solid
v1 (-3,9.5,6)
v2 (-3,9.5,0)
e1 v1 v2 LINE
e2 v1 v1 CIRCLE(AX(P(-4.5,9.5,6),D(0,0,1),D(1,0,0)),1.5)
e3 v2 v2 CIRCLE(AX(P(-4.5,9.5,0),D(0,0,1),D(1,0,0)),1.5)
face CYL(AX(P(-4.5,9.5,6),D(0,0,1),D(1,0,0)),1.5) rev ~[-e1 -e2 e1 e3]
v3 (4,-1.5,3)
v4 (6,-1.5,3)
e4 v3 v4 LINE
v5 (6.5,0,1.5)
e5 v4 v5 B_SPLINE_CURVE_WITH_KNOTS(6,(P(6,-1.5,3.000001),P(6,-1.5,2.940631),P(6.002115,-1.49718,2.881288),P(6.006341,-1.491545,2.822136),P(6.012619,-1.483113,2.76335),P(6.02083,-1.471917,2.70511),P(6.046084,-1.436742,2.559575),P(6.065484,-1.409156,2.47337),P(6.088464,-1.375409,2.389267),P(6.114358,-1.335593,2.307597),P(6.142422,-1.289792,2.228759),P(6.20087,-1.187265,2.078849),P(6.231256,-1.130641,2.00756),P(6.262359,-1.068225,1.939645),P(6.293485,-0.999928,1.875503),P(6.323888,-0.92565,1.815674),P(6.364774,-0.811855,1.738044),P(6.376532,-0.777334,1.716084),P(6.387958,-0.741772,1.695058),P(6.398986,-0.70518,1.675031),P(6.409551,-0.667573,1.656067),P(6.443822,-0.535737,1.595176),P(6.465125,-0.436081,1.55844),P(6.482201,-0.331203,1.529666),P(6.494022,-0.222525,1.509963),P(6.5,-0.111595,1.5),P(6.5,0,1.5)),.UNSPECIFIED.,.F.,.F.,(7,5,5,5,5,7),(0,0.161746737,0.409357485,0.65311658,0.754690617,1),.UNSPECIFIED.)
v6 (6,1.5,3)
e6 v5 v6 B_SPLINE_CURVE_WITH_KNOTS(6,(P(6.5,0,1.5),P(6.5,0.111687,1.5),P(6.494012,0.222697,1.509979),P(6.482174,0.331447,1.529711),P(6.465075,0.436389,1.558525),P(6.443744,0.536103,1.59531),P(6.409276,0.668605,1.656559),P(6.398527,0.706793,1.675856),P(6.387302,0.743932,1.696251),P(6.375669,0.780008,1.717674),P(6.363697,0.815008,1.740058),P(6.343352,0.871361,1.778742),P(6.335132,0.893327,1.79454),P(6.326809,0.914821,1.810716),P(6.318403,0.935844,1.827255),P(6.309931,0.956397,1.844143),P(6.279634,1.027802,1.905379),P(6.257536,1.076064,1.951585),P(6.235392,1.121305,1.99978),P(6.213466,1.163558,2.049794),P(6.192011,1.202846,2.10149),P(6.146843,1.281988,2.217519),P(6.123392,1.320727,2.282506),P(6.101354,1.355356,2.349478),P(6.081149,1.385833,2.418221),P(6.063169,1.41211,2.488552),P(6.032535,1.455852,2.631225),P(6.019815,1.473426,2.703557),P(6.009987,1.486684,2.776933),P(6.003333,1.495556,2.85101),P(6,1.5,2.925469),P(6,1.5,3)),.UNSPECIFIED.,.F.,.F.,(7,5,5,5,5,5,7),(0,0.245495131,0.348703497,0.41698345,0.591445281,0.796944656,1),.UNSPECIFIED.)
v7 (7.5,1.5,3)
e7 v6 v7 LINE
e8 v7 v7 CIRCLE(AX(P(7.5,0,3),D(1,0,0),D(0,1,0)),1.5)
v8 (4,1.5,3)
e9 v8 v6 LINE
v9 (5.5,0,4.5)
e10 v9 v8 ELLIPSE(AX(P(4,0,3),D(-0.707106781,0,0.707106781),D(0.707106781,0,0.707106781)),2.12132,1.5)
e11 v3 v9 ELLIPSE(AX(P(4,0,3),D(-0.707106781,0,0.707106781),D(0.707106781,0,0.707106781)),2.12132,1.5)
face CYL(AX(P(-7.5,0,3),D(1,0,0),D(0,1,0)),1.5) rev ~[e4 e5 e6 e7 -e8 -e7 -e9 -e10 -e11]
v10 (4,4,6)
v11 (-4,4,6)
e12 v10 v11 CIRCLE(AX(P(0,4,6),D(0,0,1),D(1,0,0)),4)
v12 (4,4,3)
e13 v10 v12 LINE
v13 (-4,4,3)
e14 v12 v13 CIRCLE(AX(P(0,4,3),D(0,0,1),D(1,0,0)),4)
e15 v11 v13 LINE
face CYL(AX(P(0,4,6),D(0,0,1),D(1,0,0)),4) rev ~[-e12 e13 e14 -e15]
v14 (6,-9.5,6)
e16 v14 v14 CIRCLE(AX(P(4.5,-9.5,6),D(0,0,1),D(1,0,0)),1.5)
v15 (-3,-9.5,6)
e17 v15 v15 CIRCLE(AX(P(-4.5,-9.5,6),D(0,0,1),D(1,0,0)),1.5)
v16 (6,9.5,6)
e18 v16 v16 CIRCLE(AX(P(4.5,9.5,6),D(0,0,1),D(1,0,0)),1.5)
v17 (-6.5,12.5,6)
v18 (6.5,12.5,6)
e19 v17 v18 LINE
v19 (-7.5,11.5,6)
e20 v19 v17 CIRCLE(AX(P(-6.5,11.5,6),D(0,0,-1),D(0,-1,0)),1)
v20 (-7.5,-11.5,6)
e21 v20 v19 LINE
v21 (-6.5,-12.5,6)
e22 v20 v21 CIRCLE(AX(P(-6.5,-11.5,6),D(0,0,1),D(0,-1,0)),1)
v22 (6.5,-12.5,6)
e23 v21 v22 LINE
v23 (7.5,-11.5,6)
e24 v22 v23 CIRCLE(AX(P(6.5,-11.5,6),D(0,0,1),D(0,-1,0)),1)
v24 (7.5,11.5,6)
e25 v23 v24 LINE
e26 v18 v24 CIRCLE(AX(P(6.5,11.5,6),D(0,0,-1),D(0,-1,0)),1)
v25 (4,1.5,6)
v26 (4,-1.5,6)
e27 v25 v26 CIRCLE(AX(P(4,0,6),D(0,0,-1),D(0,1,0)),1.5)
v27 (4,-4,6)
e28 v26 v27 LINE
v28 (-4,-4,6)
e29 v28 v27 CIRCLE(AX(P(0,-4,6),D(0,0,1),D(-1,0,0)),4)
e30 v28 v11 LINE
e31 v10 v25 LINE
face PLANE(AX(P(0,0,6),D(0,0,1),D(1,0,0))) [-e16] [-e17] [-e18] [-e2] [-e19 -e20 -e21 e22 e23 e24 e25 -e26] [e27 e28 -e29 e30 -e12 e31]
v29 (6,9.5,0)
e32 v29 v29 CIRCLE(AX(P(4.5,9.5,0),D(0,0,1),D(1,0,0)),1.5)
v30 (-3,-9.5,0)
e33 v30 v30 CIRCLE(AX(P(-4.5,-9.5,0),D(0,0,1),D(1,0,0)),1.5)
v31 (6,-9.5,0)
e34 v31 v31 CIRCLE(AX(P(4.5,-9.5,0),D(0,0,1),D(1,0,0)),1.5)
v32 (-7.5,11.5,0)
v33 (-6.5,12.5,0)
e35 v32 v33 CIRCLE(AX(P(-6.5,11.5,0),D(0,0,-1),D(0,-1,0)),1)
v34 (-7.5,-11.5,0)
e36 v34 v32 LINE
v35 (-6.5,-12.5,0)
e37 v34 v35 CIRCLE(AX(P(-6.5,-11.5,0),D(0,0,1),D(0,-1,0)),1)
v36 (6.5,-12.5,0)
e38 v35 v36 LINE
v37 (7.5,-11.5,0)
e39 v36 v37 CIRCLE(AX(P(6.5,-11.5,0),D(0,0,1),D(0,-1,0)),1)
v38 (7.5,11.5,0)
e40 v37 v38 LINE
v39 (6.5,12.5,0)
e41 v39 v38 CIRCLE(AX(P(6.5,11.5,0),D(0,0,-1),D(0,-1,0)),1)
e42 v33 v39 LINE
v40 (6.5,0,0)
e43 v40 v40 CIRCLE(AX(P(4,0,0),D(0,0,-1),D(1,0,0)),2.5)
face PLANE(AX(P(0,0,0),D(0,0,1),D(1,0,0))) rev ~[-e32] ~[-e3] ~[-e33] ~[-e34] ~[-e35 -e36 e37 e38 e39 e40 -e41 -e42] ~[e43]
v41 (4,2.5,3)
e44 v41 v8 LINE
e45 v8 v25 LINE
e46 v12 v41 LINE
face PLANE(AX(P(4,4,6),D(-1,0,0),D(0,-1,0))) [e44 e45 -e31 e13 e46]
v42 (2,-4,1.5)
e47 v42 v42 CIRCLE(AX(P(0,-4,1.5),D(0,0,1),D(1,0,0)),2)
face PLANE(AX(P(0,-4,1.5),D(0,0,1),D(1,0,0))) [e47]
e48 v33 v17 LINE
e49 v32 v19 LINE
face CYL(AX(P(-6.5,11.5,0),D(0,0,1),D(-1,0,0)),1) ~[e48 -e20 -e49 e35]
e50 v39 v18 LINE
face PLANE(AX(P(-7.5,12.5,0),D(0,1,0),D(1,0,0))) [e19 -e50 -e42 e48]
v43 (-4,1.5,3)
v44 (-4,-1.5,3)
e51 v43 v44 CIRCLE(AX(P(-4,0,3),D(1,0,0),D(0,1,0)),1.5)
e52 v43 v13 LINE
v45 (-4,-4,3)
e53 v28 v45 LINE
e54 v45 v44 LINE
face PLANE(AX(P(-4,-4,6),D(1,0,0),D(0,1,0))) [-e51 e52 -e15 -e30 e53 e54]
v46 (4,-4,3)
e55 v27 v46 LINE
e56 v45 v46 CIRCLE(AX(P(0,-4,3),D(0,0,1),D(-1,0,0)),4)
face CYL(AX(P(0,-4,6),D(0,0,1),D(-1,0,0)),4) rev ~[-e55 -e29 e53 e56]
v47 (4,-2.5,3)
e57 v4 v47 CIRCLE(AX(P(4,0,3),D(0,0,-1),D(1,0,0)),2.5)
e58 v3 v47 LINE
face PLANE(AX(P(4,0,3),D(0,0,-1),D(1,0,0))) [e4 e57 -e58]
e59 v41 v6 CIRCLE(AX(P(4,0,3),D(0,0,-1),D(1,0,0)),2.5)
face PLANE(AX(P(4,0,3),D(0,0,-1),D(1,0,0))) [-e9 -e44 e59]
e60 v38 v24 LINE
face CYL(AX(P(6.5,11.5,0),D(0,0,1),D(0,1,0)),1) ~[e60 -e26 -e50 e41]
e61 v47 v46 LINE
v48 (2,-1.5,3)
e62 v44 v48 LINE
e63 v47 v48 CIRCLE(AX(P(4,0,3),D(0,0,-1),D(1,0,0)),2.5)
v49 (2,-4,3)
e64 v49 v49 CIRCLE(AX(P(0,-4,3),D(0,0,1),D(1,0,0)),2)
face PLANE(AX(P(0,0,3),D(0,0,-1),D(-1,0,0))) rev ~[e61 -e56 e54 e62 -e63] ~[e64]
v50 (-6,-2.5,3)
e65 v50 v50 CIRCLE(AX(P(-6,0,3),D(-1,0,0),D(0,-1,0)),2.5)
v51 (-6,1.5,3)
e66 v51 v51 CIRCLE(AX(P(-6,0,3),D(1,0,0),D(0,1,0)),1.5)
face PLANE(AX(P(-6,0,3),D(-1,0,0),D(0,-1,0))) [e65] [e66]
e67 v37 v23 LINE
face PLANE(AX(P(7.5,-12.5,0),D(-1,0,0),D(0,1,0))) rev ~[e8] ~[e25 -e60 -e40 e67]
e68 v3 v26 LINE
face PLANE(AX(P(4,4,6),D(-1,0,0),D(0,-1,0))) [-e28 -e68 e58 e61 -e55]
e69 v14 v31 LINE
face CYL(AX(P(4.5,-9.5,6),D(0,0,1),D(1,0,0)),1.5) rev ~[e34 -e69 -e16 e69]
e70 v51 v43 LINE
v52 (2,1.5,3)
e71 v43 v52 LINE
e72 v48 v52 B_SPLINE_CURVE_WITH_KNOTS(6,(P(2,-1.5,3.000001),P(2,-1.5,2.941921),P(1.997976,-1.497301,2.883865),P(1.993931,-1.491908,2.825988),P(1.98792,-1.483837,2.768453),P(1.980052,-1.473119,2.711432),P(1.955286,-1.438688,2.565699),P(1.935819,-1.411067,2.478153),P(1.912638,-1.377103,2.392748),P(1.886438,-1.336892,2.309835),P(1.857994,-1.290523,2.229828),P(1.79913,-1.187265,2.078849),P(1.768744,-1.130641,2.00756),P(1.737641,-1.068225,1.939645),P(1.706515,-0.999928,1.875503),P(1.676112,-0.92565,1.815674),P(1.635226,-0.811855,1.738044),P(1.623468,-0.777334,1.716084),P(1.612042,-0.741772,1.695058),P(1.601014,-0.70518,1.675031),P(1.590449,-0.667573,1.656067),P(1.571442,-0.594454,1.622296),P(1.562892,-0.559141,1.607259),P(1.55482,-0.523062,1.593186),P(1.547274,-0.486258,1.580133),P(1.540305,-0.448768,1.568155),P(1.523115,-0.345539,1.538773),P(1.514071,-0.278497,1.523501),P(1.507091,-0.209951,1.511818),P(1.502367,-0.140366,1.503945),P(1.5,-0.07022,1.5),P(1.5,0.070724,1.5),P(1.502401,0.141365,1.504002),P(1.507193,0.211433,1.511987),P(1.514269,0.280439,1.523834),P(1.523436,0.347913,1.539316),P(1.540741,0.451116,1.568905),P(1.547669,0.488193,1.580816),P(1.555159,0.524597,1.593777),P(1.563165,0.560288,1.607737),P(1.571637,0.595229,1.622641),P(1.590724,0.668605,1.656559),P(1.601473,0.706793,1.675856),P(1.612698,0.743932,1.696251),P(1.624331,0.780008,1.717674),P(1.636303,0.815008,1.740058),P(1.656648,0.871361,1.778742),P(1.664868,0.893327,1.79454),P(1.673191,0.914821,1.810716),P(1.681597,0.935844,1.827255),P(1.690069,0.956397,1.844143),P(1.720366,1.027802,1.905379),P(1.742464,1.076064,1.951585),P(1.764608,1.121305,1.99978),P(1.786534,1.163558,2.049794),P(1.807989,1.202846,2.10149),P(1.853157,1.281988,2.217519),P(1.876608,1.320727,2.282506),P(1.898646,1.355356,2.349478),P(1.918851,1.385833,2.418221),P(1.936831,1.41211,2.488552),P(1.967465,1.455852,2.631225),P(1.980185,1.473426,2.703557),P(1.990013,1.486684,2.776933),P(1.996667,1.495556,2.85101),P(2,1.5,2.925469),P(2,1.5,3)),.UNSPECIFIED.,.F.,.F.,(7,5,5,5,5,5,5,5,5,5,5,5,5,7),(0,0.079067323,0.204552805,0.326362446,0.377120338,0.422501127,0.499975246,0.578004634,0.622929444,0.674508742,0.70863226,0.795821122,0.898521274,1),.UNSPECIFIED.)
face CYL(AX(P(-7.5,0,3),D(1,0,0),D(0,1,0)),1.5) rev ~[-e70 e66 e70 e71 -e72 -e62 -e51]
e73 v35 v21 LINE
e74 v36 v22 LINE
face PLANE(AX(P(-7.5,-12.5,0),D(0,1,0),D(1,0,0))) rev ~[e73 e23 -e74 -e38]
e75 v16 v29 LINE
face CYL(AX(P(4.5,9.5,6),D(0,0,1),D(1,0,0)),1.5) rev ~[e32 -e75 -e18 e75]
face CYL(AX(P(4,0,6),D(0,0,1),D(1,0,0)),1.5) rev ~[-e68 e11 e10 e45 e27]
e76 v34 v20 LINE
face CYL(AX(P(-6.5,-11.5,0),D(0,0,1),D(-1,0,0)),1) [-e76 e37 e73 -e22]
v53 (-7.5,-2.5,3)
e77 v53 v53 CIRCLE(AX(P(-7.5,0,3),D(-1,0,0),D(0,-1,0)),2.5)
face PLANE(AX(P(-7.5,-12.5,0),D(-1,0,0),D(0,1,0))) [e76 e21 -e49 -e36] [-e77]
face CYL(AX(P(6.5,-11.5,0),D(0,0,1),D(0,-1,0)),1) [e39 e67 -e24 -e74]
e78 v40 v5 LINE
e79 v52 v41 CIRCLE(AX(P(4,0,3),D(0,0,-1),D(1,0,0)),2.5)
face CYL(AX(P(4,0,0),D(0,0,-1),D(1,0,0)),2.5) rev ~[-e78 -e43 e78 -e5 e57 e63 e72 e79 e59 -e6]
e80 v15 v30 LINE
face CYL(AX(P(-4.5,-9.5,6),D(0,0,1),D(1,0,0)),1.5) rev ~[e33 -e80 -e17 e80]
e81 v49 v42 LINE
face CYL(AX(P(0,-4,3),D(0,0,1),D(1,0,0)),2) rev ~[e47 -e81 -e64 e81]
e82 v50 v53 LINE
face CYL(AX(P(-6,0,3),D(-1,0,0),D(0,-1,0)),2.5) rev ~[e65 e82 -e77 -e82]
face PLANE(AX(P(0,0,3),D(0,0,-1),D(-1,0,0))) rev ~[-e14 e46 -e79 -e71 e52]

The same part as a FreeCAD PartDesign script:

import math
import FreeCAD as App
import Part
import Sketcher
from FreeCAD import Vector
Q = App.Units.Quantity


def edges_at(feature, points):
    """Names of the edges that pass closest to the given points."""
    edges = feature.Shape.Edges
    near = lambda p: min(range(len(edges)), key=lambda i: edges[i].distToShape(Part.Vertex(*p))[0])
    return sorted({f"Edge{near(p) + 1}" for p in points})


def add_polygon(sketch, points):
    """Adds a closed chain of lines whose ends are joined by coincident constraints."""
    first, n = sketch.GeometryCount, len(points)
    for a, b in zip(points, points[1:] + points[:1]):
        sketch.addGeometry(Part.LineSegment(App.Vector(*a, 0), App.Vector(*b, 0)), False)
    for i in range(n):
        sketch.addConstraint(Sketcher.Constraint("Coincident", first + i, 2, first + (i + 1) % n, 1))

doc = App.newDocument("Part")
body = doc.addObject("PartDesign::Body", "Body")

# Sketch on XY plane
sketch1 = doc.addObject("Sketcher::SketchObject", "Sketch")
body.addObject(sketch1)
sketch1.AttachmentSupport = (doc.XY_Plane, [""])
sketch1.MapMode = "FlatFace"
add_polygon(sketch1, [(-8, 12), (-8, -12), (8, -12), (8, 12)])  # lines 0-3
sketch1.addConstraint([
    Sketcher.Constraint("Vertical", 0),
    Sketcher.Constraint("Horizontal", 1),
    Sketcher.Constraint("Vertical", 2),
    Sketcher.Constraint("Horizontal", 3),
    Sketcher.Constraint("Symmetric", 0, 2, 2, 2, -1, 1),
    Sketcher.Constraint("DistanceX", 1, 1, 1, 2, Q("15 mm")),
    Sketcher.Constraint("DistanceY", 0, 2, 0, 1, Q("25 mm")),
])
pad1 = doc.addObject("PartDesign::Pad", "Pad")
body.addObject(pad1)
pad1.Profile = sketch1
pad1.Length = 6

# Sketch on XY plane
sketch2 = doc.addObject("Sketcher::SketchObject", "Sketch001")
body.addObject(sketch2)
sketch2.AttachmentSupport = (doc.XY_Plane, [""])
sketch2.MapMode = "FlatFace"
sketch2.AttachmentOffset = App.Placement(Vector(0, 0, 6), App.Rotation())
sketch2.addGeometry([
    Part.LineSegment(Vector(4, -4, 0), Vector(4, 4, 0)),
    Part.ArcOfCircle(Part.Circle(Vector(0, 4, 0), Vector(0, 0, 1), 4), math.radians(0), math.radians(180)),
    Part.LineSegment(Vector(-4, 4, 0), Vector(-4, -4, 0)),
    Part.ArcOfCircle(Part.Circle(Vector(0, -4, 0), Vector(0, 0, 1), 4), math.radians(180), math.radians(360)),
], False)
sketch2.addConstraint([
    Sketcher.Constraint("Tangent", 0, 2, 1, 1),
    Sketcher.Constraint("Tangent", 1, 2, 2, 1),
    Sketcher.Constraint("Tangent", 2, 2, 3, 1),
    Sketcher.Constraint("Tangent", 3, 2, 0, 1),
    Sketcher.Constraint("Vertical", 0),
    Sketcher.Constraint("Vertical", 2),
    Sketcher.Constraint("Symmetric", 1, 3, 3, 3, -1, 1),
    Sketcher.Constraint("Radius", 1, Q("4 mm")),
    Sketcher.Constraint("DistanceY", 0, 1, 0, 2, Q("8 mm")),
])
pocket1 = doc.addObject("PartDesign::Pocket", "Pocket")
body.addObject(pocket1)
pocket1.Profile = sketch2
pocket1.Length = 3

# Sketch on XY plane
sketch3 = doc.addObject("Sketcher::SketchObject", "Sketch002")
body.addObject(sketch3)
sketch3.AttachmentSupport = (doc.XY_Plane, [""])
sketch3.MapMode = "FlatFace"
sketch3.addGeometry(Part.Circle(Vector(4, 0, 0), Vector(0, 0, 1), 2.5), False)
sketch3.addConstraint([
    Sketcher.Constraint("PointOnObject", 0, 3, -1),
    Sketcher.Constraint("Diameter", 0, Q("5 mm")),
    Sketcher.Constraint("DistanceX", -1, 1, 0, 3, Q("4 mm")),
])
pocket2 = doc.addObject("PartDesign::Pocket", "Pocket001")
body.addObject(pocket2)
pocket2.Profile = sketch3
pocket2.Length = 3
pocket2.Reversed = True

# Sketch on XY plane
sketch4 = doc.addObject("Sketcher::SketchObject", "Sketch003")
body.addObject(sketch4)
sketch4.AttachmentSupport = (doc.XY_Plane, [""])
sketch4.MapMode = "FlatFace"
sketch4.AttachmentOffset = App.Placement(Vector(0, 0, 6), App.Rotation())
sketch4.addGeometry(Part.Circle(Vector(4, 0, 0), Vector(0, 0, 1), 1.5), False)
sketch4.addConstraint([
    Sketcher.Constraint("PointOnObject", 0, 3, -1),
    Sketcher.Constraint("Diameter", 0, Q("3 mm")),
    Sketcher.Constraint("DistanceX", -1, 1, 0, 3, Q("4 mm")),
])
pocket3 = doc.addObject("PartDesign::Pocket", "Pocket002")
body.addObject(pocket3)
pocket3.Profile = sketch4
pocket3.Type = "ThroughAll"

# Sketch on XY plane
sketch5 = doc.addObject("Sketcher::SketchObject", "Sketch004")
body.addObject(sketch5)
sketch5.AttachmentSupport = (doc.XY_Plane, [""])
sketch5.MapMode = "FlatFace"
sketch5.AttachmentOffset = App.Placement(Vector(0, 0, 3), App.Rotation())
sketch5.addGeometry(Part.Circle(Vector(0, -4, 0), Vector(0, 0, 1), 2), False)
sketch5.addConstraint([
    Sketcher.Constraint("PointOnObject", 0, 3, -2),
    Sketcher.Constraint("Diameter", 0, Q("4 mm")),
    Sketcher.Constraint("DistanceY", 0, 3, -1, 1, Q("4 mm")),
])
pocket4 = doc.addObject("PartDesign::Pocket", "Pocket003")
body.addObject(pocket4)
pocket4.Profile = sketch5
pocket4.Length = 1.5

# Sketch on XY plane
sketch6 = doc.addObject("Sketcher::SketchObject", "Sketch005")
body.addObject(sketch6)
sketch6.AttachmentSupport = (doc.XY_Plane, [""])
sketch6.MapMode = "FlatFace"
sketch6.AttachmentOffset = App.Placement(Vector(0, 0, 6), App.Rotation())
sketch6.addGeometry(Part.Circle(Vector(-4.5, 9.5, 0), Vector(0, 0, 1), 1.5), False)
sketch6.addConstraint([
    Sketcher.Constraint("Diameter", 0, Q("3 mm")),
    Sketcher.Constraint("DistanceX", 0, 3, -1, 1, Q("4.5 mm")),
    Sketcher.Constraint("DistanceY", -1, 1, 0, 3, Q("9.5 mm")),
])
pocket5 = doc.addObject("PartDesign::Pocket", "Pocket004")
body.addObject(pocket5)
pocket5.Profile = sketch6
pocket5.Type = "ThroughAll"

# Sketch on XY plane
sketch7 = doc.addObject("Sketcher::SketchObject", "Sketch006")
body.addObject(sketch7)
sketch7.AttachmentSupport = (doc.XY_Plane, [""])
sketch7.MapMode = "FlatFace"
sketch7.AttachmentOffset = App.Placement(Vector(0, 0, 6), App.Rotation())
sketch7.addGeometry(Part.Circle(Vector(4.5, 9.5, 0), Vector(0, 0, 1), 1.5), False)
sketch7.addConstraint([
    Sketcher.Constraint("Diameter", 0, Q("3 mm")),
    Sketcher.Constraint("DistanceX", -1, 1, 0, 3, Q("4.5 mm")),
    Sketcher.Constraint("DistanceY", -1, 1, 0, 3, Q("9.5 mm")),
])
pocket6 = doc.addObject("PartDesign::Pocket", "Pocket005")
body.addObject(pocket6)
pocket6.Profile = sketch7
pocket6.Type = "ThroughAll"
doc.recompute()

linearpattern = doc.addObject("PartDesign::LinearPattern", "LinearPattern")
body.addObject(linearpattern)
linearpattern.Originals = [pocket5, pocket6]
linearpattern.Direction = (doc.Y_Axis, [""])
linearpattern.Mode = "offset"
linearpattern.Offset = 19
linearpattern.Occurrences = 2
linearpattern.Reversed = True
body.Tip = linearpattern

# Sketch on YZ plane
sketch8 = doc.addObject("Sketcher::SketchObject", "Sketch007")
body.addObject(sketch8)
sketch8.AttachmentSupport = (doc.YZ_Plane, [""])
sketch8.MapMode = "FlatFace"
sketch8.AttachmentOffset = App.Placement(Vector(0, 0, -7.5), App.Rotation())
sketch8.addGeometry(Part.Circle(Vector(0, 3, 0), Vector(0, 0, 1), 1.5), False)
sketch8.addConstraint([
    Sketcher.Constraint("PointOnObject", 0, 3, -2),
    Sketcher.Constraint("Diameter", 0, Q("3 mm")),
    Sketcher.Constraint("DistanceY", -1, 1, 0, 3, Q("3 mm")),
])
doc.recompute()
hole = doc.addObject("PartDesign::Hole", "Hole")
body.addObject(hole)
hole.Profile = sketch8
hole.ThreadType = "None"
hole.Diameter = 3
hole.DepthType = "Dimension"
hole.Depth = 25
hole.DrillPoint = "Flat"
hole.HoleCutType = "Counterbore"
hole.HoleCutDiameter = 5
hole.HoleCutDepth = 1.5
hole.Reversed = True
doc.recompute()

fillet = doc.addObject("PartDesign::Fillet", "Fillet")
body.addObject(fillet)
fillet.Base = (hole, edges_at(hole, [
    (-7.5, -12.5, 3),
    (7.5, -12.5, 3),
    (-7.5, 12.5, 3),
    (7.5, 12.5, 3),
]))
fillet.Radius = 1

doc.recompute()
